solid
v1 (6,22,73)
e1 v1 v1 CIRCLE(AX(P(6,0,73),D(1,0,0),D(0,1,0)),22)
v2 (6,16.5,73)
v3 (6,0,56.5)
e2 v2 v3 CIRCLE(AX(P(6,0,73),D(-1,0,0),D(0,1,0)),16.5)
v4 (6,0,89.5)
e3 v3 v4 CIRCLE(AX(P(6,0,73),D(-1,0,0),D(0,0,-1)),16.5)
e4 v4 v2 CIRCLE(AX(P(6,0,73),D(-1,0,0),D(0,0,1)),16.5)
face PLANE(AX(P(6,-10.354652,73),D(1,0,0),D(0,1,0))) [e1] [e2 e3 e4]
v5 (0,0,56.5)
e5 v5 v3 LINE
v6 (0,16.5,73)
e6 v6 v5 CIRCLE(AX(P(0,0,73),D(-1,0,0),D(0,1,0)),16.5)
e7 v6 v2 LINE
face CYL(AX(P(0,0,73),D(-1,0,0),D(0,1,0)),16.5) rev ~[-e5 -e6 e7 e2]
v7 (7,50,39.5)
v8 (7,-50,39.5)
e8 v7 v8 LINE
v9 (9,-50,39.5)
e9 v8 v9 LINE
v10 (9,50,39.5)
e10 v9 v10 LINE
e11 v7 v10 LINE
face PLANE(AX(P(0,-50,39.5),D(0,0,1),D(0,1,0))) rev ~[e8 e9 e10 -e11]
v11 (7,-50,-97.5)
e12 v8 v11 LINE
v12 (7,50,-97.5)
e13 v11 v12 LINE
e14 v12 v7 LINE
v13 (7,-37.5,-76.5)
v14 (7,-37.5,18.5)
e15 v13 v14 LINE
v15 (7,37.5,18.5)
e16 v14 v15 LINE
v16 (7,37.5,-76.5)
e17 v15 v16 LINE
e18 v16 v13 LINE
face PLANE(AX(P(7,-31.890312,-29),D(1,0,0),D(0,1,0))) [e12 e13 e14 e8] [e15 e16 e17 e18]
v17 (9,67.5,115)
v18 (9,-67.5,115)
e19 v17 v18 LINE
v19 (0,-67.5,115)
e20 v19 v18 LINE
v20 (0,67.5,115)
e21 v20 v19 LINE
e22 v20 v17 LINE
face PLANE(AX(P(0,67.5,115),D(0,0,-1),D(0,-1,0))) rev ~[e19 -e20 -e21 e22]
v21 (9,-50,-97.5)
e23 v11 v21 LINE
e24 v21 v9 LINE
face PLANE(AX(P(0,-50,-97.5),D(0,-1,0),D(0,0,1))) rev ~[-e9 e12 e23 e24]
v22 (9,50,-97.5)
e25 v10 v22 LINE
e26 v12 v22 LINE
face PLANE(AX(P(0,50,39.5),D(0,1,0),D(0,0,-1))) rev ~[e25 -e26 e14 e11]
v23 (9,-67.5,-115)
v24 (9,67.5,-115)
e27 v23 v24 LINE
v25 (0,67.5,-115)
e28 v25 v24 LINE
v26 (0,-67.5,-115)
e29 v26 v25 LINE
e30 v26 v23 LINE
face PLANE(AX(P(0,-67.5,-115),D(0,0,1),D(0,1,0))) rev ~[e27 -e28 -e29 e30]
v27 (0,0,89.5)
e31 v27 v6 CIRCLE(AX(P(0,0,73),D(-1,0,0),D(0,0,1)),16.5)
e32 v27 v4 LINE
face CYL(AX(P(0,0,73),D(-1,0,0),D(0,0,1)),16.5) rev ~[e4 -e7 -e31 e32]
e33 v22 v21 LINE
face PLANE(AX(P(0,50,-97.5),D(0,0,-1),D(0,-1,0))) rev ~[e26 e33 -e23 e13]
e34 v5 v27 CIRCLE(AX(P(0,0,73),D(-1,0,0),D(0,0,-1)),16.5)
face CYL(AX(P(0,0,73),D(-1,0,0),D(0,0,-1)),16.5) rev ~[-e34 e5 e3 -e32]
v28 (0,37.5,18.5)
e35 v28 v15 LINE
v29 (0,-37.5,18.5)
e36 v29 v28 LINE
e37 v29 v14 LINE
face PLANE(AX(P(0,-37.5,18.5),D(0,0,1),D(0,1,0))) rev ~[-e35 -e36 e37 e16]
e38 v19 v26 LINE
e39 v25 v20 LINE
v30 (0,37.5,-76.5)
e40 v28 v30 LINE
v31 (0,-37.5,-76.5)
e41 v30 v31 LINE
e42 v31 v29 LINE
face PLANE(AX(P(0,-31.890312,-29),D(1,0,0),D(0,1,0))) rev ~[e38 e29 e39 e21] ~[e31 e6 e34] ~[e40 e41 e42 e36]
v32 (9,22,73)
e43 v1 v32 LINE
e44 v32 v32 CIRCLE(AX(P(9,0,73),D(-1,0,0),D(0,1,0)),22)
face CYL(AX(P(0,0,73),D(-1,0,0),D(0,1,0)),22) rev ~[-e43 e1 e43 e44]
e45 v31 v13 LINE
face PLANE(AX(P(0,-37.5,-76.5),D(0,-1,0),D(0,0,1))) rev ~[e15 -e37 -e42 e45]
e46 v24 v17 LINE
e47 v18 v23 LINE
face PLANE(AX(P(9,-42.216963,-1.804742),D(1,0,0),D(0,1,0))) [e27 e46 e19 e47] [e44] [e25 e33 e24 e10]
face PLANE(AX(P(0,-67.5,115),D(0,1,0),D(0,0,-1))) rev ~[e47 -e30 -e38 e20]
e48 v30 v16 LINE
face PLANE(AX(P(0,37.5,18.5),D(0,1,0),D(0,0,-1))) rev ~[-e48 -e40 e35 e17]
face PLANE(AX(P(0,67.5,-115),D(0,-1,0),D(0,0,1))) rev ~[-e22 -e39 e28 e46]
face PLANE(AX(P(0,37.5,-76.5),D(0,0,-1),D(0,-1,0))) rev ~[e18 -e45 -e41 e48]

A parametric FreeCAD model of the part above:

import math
import FreeCAD as App
import Part
import Sketcher
from FreeCAD import Vector

doc = App.newDocument("Part")
body = doc.addObject("PartDesign::Body", "Body")

# Sketch on YZ plane
sketch1 = body.newObject("Sketcher::SketchObject", "Sketch")
sketch1.AttachmentSupport = (doc.getObject("YZ_Plane"), [""])
sketch1.MapMode = "FlatFace"
sketch1.addGeometry(Part.LineSegment(Vector(-68, 115, 0), Vector(-68, -115, 0)), False)
sketch1.addGeometry(Part.LineSegment(Vector(-68, -115, 0), Vector(68, -115, 0)), False)
sketch1.addGeometry(Part.LineSegment(Vector(68, -115, 0), Vector(68, 115, 0)), False)
sketch1.addGeometry(Part.LineSegment(Vector(68, 115, 0), Vector(-68, 115, 0)), False)
sketch1.addGeometry(Part.LineSegment(Vector(-50, -98, 0), Vector(-50, 40, 0)), False)
sketch1.addGeometry(Part.LineSegment(Vector(-50, 40, 0), Vector(50, 40, 0)), False)
sketch1.addGeometry(Part.LineSegment(Vector(50, 40, 0), Vector(50, -98, 0)), False)
sketch1.addGeometry(Part.LineSegment(Vector(50, -98, 0), Vector(-50, -98, 0)), False)
sketch1.addGeometry(Part.Circle(Vector(0, 73, 0), Vector(0, 0, 1), 22), False)
sketch1.addConstraint(Sketcher.Constraint("Coincident", 0, 2, 1, 1))
sketch1.addConstraint(Sketcher.Constraint("Coincident", 1, 2, 2, 1))
sketch1.addConstraint(Sketcher.Constraint("Coincident", 2, 2, 3, 1))
sketch1.addConstraint(Sketcher.Constraint("Coincident", 3, 2, 0, 1))
sketch1.addConstraint(Sketcher.Constraint("Coincident", 4, 2, 5, 1))
sketch1.addConstraint(Sketcher.Constraint("Coincident", 5, 2, 6, 1))
sketch1.addConstraint(Sketcher.Constraint("Coincident", 6, 2, 7, 1))
sketch1.addConstraint(Sketcher.Constraint("Coincident", 7, 2, 4, 1))
sketch1.addConstraint(Sketcher.Constraint("Vertical", 0))
sketch1.addConstraint(Sketcher.Constraint("Horizontal", 1))
sketch1.addConstraint(Sketcher.Constraint("Vertical", 2))
sketch1.addConstraint(Sketcher.Constraint("Horizontal", 3))
sketch1.addConstraint(Sketcher.Constraint("Vertical", 4))
sketch1.addConstraint(Sketcher.Constraint("Horizontal", 5))
sketch1.addConstraint(Sketcher.Constraint("Vertical", 6))
sketch1.addConstraint(Sketcher.Constraint("Horizontal", 7))
sketch1.addConstraint(Sketcher.Constraint("Symmetric", 0, 2, 2, 2, -1, 1))
sketch1.addConstraint(Sketcher.Constraint("PointOnObject", 8, 3, -2))
sketch1.addConstraint(Sketcher.Constraint("Diameter", 8, 44.0))
sketch1.addConstraint(Sketcher.Constraint("DistanceX", 1, 1, 1, 2, 135.0))
sketch1.addConstraint(Sketcher.Constraint("DistanceX", 5, 1, 5, 2, 100.0))
sketch1.addConstraint(Sketcher.Constraint("DistanceY", 0, 2, 0, 1, 230.0))
sketch1.addConstraint(Sketcher.Constraint("DistanceY", 4, 1, 4, 2, 137.0))
sketch1.addConstraint(Sketcher.Constraint("DistanceY", -1, 1, 8, 3, 73.0))
sketch1.addConstraint(Sketcher.Constraint("DistanceX", 4, 2, -1, 1, 50.0))
sketch1.addConstraint(Sketcher.Constraint("DistanceY", -1, 1, 4, 2, 39.5))
pad1 = body.newObject("PartDesign::Pad", "Pad")
pad1.Profile = sketch1
pad1.Length = 9

# Sketch on YZ plane
sketch2 = body.newObject("Sketcher::SketchObject", "Sketch001")
sketch2.AttachmentSupport = (doc.getObject("YZ_Plane"), [""])
sketch2.MapMode = "FlatFace"
sketch2.addGeometry(Part.Circle(Vector(0, 73, 0), Vector(0, 0, 1), 22), False)
sketch2.addGeometry(Part.ArcOfCircle(Part.Circle(Vector(0, 73, 0), Vector(0, 0, 1), 16), math.radians(90), math.radians(270)), False)
sketch2.addGeometry(Part.ArcOfCircle(Part.Circle(Vector(0, 73, 0), Vector(0, 0, 1), 16), math.radians(0), math.radians(90)), False)
sketch2.addGeometry(Part.ArcOfCircle(Part.Circle(Vector(0, 73, 0), Vector(0, 0, 1), 16), math.radians(-90), math.radians(0)), False)
sketch2.addConstraint(Sketcher.Constraint("Tangent", 1, 1, 2, 2))
sketch2.addConstraint(Sketcher.Constraint("Tangent", 2, 1, 3, 2))
sketch2.addConstraint(Sketcher.Constraint("Tangent", 3, 1, 1, 2))
sketch2.addConstraint(Sketcher.Constraint("Coincident", 1, 3, 0, 3))
sketch2.addConstraint(Sketcher.Constraint("PointOnObject", 0, 3, -2))
sketch2.addConstraint(Sketcher.Constraint("PointOnObject", 1, 1, -2))
sketch2.addConstraint(Sketcher.Constraint("PointOnObject", 3, 1, -2))
sketch2.addConstraint(Sketcher.Constraint("Horizontal", 3, 3, 2, 1))
sketch2.addConstraint(Sketcher.Constraint("Diameter", 0, 44.0))
sketch2.addConstraint(Sketcher.Constraint("Radius", 1, 16.5))
sketch2.addConstraint(Sketcher.Constraint("DistanceY", -1, 1, 0, 3, 73.0))
pad2 = body.newObject("PartDesign::Pad", "Pad001")
pad2.Profile = sketch2
pad2.Length = 6

# Sketch on YZ plane
sketch3 = body.newObject("Sketcher::SketchObject", "Sketch002")
sketch3.AttachmentSupport = (doc.getObject("YZ_Plane"), [""])
sketch3.MapMode = "FlatFace"
sketch3.addGeometry(Part.LineSegment(Vector(-50, -98, 0), Vector(50, -98, 0)), False)
sketch3.addGeometry(Part.LineSegment(Vector(50, -98, 0), Vector(50, 40, 0)), False)
sketch3.addGeometry(Part.LineSegment(Vector(50, 40, 0), Vector(-50, 40, 0)), False)
sketch3.addGeometry(Part.LineSegment(Vector(-50, 40, 0), Vector(-50, -98, 0)), False)
sketch3.addGeometry(Part.LineSegment(Vector(-38, -76, 0), Vector(-38, 18, 0)), False)
sketch3.addGeometry(Part.LineSegment(Vector(-38, 18, 0), Vector(38, 18, 0)), False)
sketch3.addGeometry(Part.LineSegment(Vector(38, 18, 0), Vector(38, -76, 0)), False)
sketch3.addGeometry(Part.LineSegment(Vector(38, -76, 0), Vector(-38, -76, 0)), False)
sketch3.addConstraint(Sketcher.Constraint("Coincident", 0, 2, 1, 1))
sketch3.addConstraint(Sketcher.Constraint("Coincident", 1, 2, 2, 1))
sketch3.addConstraint(Sketcher.Constraint("Coincident", 2, 2, 3, 1))
sketch3.addConstraint(Sketcher.Constraint("Coincident", 3, 2, 0, 1))
sketch3.addConstraint(Sketcher.Constraint("Coincident", 4, 2, 5, 1))
sketch3.addConstraint(Sketcher.Constraint("Coincident", 5, 2, 6, 1))
sketch3.addConstraint(Sketcher.Constraint("Coincident", 6, 2, 7, 1))
sketch3.addConstraint(Sketcher.Constraint("Coincident", 7, 2, 4, 1))
sketch3.addConstraint(Sketcher.Constraint("Horizontal", 0))
sketch3.addConstraint(Sketcher.Constraint("Vertical", 1))
sketch3.addConstraint(Sketcher.Constraint("Horizontal", 2))
sketch3.addConstraint(Sketcher.Constraint("Vertical", 3))
sketch3.addConstraint(Sketcher.Constraint("Vertical", 4))
sketch3.addConstraint(Sketcher.Constraint("Horizontal", 5))
sketch3.addConstraint(Sketcher.Constraint("Vertical", 6))
sketch3.addConstraint(Sketcher.Constraint("Horizontal", 7))
sketch3.addConstraint(Sketcher.Constraint("DistanceX", 0, 1, 0, 2, 100.0))
sketch3.addConstraint(Sketcher.Constraint("DistanceX", 5, 1, 5, 2, 75.0))
sketch3.addConstraint(Sketcher.Constraint("DistanceY", 1, 1, 1, 2, 137.0))
sketch3.addConstraint(Sketcher.Constraint("DistanceY", 4, 1, 4, 2, 95.0))
sketch3.addConstraint(Sketcher.Constraint("DistanceX", -1, 1, 0, 2, 50.0))
sketch3.addConstraint(Sketcher.Constraint("DistanceY", 4, 2, 2, 2, 21.0))
sketch3.addConstraint(Sketcher.Constraint("DistanceY", 0, 2, -1, 1, 97.5))
sketch3.addConstraint(Sketcher.Constraint("DistanceX", 4, 2, -1, 1, 37.5))
pad3 = body.newObject("PartDesign::Pad", "Pad002")
pad3.Profile = sketch3
pad3.Length = 7

doc.recompute()
